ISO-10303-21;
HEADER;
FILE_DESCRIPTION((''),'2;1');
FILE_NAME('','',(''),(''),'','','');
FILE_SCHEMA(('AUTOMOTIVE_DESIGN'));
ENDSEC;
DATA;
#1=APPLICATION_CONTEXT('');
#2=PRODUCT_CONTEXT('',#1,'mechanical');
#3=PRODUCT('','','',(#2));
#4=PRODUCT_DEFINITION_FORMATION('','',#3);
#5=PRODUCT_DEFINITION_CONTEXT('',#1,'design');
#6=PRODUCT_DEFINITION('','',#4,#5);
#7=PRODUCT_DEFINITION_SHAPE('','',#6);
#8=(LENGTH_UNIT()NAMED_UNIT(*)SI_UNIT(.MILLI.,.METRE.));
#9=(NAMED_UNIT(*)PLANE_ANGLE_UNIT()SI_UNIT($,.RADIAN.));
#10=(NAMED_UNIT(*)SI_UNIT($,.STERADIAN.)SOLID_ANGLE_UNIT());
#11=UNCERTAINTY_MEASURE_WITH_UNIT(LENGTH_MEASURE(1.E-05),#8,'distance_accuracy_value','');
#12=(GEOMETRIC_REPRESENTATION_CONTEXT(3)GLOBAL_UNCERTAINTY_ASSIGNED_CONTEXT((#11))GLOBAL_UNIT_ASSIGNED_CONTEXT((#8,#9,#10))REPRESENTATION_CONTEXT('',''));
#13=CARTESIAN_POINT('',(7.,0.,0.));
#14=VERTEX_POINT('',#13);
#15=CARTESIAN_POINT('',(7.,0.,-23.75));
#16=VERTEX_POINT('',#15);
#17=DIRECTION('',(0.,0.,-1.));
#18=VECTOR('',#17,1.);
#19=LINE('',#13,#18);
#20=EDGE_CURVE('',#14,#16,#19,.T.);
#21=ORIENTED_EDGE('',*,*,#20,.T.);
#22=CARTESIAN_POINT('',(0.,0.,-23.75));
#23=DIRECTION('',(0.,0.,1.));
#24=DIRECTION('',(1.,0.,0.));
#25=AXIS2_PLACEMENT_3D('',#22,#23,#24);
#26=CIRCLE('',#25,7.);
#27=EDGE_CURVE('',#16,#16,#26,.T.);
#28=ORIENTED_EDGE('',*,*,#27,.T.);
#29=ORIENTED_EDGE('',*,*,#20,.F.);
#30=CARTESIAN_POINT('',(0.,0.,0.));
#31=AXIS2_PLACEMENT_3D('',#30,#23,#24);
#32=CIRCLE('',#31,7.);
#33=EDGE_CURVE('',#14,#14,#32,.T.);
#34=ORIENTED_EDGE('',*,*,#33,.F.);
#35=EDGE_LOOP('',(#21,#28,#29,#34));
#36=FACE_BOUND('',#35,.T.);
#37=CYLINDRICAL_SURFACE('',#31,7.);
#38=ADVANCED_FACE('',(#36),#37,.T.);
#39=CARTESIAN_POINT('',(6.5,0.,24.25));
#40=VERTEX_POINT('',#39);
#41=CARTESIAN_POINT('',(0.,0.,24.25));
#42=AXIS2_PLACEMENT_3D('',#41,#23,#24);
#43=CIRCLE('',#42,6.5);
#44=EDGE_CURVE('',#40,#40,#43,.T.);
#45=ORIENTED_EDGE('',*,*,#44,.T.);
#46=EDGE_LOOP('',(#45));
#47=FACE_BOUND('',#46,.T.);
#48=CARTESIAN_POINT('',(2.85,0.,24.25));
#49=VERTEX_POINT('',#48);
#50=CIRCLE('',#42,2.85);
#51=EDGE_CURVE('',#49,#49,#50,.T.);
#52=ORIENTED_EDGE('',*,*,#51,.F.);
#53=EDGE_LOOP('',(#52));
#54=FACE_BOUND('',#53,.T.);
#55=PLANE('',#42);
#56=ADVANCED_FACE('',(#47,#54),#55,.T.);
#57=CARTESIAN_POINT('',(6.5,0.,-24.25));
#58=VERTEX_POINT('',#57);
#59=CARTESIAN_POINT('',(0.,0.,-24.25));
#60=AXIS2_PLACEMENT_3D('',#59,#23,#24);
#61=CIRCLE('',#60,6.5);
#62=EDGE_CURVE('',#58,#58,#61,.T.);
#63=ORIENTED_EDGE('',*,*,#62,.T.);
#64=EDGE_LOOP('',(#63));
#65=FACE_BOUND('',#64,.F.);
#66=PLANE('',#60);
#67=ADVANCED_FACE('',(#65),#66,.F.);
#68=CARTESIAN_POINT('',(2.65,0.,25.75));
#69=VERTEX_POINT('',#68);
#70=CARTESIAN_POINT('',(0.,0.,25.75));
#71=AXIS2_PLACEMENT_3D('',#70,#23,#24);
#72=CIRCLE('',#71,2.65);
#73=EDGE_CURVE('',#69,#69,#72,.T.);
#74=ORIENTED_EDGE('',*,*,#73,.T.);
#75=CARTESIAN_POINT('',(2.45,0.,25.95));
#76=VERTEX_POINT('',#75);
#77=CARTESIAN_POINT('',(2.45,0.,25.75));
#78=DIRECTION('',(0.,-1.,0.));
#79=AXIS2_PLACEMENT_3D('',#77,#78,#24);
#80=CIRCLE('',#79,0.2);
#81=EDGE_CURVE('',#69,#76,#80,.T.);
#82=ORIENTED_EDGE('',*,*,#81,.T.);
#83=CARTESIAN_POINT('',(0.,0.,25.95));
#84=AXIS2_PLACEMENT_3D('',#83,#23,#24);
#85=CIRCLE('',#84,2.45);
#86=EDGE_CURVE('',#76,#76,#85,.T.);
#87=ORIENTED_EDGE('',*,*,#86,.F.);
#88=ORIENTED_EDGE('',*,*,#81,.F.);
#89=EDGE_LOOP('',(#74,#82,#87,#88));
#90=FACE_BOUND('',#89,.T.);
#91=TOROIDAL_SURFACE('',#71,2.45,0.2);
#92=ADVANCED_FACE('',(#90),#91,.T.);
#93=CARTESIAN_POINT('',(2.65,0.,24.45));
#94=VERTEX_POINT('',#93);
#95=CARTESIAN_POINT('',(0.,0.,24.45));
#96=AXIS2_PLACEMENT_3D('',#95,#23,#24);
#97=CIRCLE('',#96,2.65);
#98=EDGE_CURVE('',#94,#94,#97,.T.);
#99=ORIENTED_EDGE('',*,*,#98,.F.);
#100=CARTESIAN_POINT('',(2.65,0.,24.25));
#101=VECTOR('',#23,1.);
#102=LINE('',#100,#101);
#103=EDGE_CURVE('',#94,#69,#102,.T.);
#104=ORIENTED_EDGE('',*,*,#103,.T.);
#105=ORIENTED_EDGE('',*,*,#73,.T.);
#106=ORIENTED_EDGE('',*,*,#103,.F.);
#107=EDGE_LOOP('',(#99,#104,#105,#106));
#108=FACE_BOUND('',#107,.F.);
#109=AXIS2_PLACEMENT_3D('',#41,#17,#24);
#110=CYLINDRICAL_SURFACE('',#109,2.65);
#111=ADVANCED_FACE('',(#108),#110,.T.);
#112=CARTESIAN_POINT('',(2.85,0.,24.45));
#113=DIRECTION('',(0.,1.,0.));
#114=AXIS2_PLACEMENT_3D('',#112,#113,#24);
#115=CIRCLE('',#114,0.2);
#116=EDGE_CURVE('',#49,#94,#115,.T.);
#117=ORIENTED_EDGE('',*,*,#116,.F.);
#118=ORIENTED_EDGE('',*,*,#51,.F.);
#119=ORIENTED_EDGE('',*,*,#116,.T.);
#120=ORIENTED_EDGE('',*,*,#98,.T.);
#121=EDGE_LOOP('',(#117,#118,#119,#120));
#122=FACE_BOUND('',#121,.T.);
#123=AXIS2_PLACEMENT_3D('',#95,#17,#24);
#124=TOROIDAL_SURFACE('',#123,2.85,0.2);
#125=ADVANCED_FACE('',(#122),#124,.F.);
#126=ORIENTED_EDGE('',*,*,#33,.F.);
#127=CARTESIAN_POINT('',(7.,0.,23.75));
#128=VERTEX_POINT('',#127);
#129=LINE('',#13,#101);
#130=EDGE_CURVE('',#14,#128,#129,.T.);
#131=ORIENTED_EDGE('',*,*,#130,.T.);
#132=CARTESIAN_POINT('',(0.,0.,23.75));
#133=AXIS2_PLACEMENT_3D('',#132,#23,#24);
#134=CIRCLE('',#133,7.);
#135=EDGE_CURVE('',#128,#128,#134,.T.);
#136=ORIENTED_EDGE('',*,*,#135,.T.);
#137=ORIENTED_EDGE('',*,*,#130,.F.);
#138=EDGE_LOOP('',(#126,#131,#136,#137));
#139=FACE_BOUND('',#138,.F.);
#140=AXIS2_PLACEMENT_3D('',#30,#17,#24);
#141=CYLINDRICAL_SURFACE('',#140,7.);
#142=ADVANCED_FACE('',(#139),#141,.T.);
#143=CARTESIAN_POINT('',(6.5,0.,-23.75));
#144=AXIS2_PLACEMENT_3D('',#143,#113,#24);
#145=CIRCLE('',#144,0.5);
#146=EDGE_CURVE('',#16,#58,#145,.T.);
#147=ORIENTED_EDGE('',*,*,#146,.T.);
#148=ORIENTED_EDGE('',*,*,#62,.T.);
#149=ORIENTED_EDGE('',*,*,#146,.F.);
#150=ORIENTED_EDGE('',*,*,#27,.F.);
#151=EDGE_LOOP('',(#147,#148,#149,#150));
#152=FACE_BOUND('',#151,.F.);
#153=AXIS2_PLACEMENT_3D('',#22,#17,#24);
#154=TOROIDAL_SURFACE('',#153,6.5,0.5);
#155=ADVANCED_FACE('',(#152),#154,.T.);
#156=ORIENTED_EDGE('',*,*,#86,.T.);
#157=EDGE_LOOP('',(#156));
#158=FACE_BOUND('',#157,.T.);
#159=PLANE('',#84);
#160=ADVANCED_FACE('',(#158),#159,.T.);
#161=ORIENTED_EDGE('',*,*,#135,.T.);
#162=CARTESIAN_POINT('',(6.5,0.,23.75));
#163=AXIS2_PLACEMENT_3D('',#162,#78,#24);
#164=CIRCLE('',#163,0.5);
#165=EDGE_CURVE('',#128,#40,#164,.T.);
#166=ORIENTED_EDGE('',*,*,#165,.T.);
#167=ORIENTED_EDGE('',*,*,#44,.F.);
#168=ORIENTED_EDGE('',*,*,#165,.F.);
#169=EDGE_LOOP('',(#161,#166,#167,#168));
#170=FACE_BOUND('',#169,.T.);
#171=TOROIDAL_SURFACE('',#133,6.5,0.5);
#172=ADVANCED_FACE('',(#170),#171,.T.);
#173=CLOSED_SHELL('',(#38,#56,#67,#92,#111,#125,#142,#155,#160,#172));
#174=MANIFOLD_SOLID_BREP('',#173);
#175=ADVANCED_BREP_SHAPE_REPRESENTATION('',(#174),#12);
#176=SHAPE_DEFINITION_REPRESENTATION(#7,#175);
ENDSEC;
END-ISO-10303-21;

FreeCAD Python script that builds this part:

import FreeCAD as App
import Part
import Sketcher
from FreeCAD import Vector


def edges_at(feature, points):
    """Names of the edges that pass closest to the given points."""
    edges = feature.Shape.Edges
    near = lambda p: min(range(len(edges)), key=lambda i: edges[i].distToShape(Part.Vertex(*p))[0])
    return sorted({f"Edge{near(p) + 1}" for p in points})

doc = App.newDocument("Part")
body = doc.addObject("PartDesign::Body", "Body")

sketch1 = body.newObject("Sketcher::SketchObject", "Sketch")
sketch1.AttachmentSupport = (doc.getObject("XY_Plane"), [""])
sketch1.MapMode = "FlatFace"
sketch1.addGeometry(Part.Circle(Vector(0, 0, 0), Vector(0, 0, 1), 7), False)
sketch1.addConstraint(Sketcher.Constraint("Coincident", 0, 3, -1, 1))
sketch1.addConstraint(Sketcher.Constraint("Diameter", 0, 14.0))
pad1 = body.newObject("PartDesign::Pad", "Pad")
pad1.Profile = sketch1
pad1.Length = 48.5
pad1.Midplane = True

sketch2 = body.newObject("Sketcher::SketchObject", "Sketch001")
sketch2.AttachmentSupport = (doc.getObject("XY_Plane"), [""])
sketch2.MapMode = "FlatFace"
sketch2.AttachmentOffset = App.Placement(Vector(0, 0, 24.25), App.Rotation())
sketch2.addGeometry(Part.Circle(Vector(0, 0, 0), Vector(0, 0, 1), 2.65), False)
sketch2.addConstraint(Sketcher.Constraint("Coincident", 0, 3, -1, 1))
sketch2.addConstraint(Sketcher.Constraint("Diameter", 0, 5.3))
pad2 = body.newObject("PartDesign::Pad", "Pad001")
pad2.Profile = sketch2
pad2.Length = 1.7
doc.recompute()

fillet = body.newObject("PartDesign::Fillet", "Fillet")
fillet.Base = (pad2, edges_at(pad2, [(-7, 0, 24.25), (-7, 0, -24.25)]))
fillet.Radius = 0.5
doc.recompute()

fillet2 = body.newObject("PartDesign::Fillet", "Fillet001")
fillet2.Base = (fillet, edges_at(fillet, [(-2.65, 0, 25.95), (-2.65, 0, 24.25)]))
fillet2.Radius = 0.2

doc.recompute()
